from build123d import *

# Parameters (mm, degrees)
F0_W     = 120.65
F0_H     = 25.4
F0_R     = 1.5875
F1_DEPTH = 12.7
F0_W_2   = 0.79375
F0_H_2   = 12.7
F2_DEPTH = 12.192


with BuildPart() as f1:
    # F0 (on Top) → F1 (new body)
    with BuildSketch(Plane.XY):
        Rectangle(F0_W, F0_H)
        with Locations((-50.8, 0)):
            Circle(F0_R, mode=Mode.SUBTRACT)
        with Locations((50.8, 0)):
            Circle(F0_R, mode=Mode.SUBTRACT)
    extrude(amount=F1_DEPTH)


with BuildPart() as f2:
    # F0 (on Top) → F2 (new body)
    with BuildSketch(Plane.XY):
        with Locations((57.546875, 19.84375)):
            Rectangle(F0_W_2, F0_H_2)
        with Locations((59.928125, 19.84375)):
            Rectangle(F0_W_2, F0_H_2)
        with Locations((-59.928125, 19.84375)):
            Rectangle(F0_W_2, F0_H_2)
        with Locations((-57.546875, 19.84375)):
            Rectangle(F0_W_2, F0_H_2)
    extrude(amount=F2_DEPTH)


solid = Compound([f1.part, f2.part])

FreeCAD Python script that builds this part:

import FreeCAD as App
import Part
import Sketcher
Q = App.Units.Quantity

doc = App.newDocument("Part")
body = doc.addObject("PartDesign::Body", "Body")

# Sketch on XY plane
sketch1 = doc.addObject("Sketcher::SketchObject", "Sketch")
body.addObject(sketch1)
sketch1.AttachmentSupport = (doc.XY_Plane, [""])
sketch1.MapMode = "FlatFace"
sketch1.addGeometry([
    Part.LineSegment(App.Vector(-60.325, 12.7, 0), App.Vector(-60.325, -12.7, 0)),  # 0
    Part.LineSegment(App.Vector(-60.325, -12.7, 0), App.Vector(60.325, -12.7, 0)),  # 1
    Part.LineSegment(App.Vector(60.325, -12.7, 0), App.Vector(60.325, 12.7, 0)),  # 2
    Part.LineSegment(App.Vector(60.325, 12.7, 0), App.Vector(-60.325, 12.7, 0)),  # 3
    Part.Circle(App.Vector(-50.8, 0, 0), App.Vector(0, 0, 1), 1.5875),  # 4
    Part.Circle(App.Vector(50.8, 0, 0), App.Vector(0, 0, 1), 1.5875),  # 5
], False)
sketch1.addConstraint([
    Sketcher.Constraint("Coincident", 0, 2, 1, 1),
    Sketcher.Constraint("Coincident", 1, 2, 2, 1),
    Sketcher.Constraint("Coincident", 2, 2, 3, 1),
    Sketcher.Constraint("Coincident", 3, 2, 0, 1),
    Sketcher.Constraint("Vertical", 0),
    Sketcher.Constraint("Horizontal", 1),
    Sketcher.Constraint("Vertical", 2),
    Sketcher.Constraint("Horizontal", 3),
    Sketcher.Constraint("Equal", 4, 5),
    Sketcher.Constraint("Symmetric", 4, 3, 5, 3, -1, 1),
    Sketcher.Constraint("Symmetric", 0, 2, 2, 2, -1, 1),
    Sketcher.Constraint("PointOnObject", 4, 3, -1),
    Sketcher.Constraint("DistanceY", 0, 2, 0, 1, Q("1 in")),
    Sketcher.Constraint("Diameter", 4, Q("0.125 in")),
    Sketcher.Constraint("DistanceX", 4, 3, -1, 1, Q("2 in")),
    Sketcher.Constraint("DistanceX", 1, 1, 1, 2, Q("4.75 in")),
])
pad1 = doc.addObject("PartDesign::Pad", "Pad")
body.addObject(pad1)
pad1.Profile = sketch1
pad1.Length = Q("0.5 in")
body2 = doc.addObject("PartDesign::Body", "Body001")
body2.AllowCompound = True

# Sketch on XY plane
sketch2 = doc.addObject("Sketcher::SketchObject", "Sketch001")
body2.addObject(sketch2)
sketch2.AttachmentSupport = (doc.getObject("XY_Plane001"), [""])
sketch2.MapMode = "FlatFace"
sketch2.addGeometry([
    Part.LineSegment(App.Vector(57.15, 26.19375, 0), App.Vector(57.15, 13.49375, 0)),  # 0
    Part.LineSegment(App.Vector(57.15, 13.49375, 0), App.Vector(57.94375, 13.49375, 0)),  # 1
    Part.LineSegment(App.Vector(57.94375, 13.49375, 0), App.Vector(57.94375, 26.19375, 0)),  # 2
    Part.LineSegment(App.Vector(57.94375, 26.19375, 0), App.Vector(57.15, 26.19375, 0)),  # 3
    Part.LineSegment(App.Vector(59.53125, 26.19375, 0), App.Vector(59.53125, 13.49375, 0)),  # 4
    Part.LineSegment(App.Vector(59.53125, 13.49375, 0), App.Vector(60.325, 13.49375, 0)),  # 5
    Part.LineSegment(App.Vector(60.325, 13.49375, 0), App.Vector(60.325, 26.19375, 0)),  # 6
    Part.LineSegment(App.Vector(60.325, 26.19375, 0), App.Vector(59.53125, 26.19375, 0)),  # 7
    Part.LineSegment(App.Vector(-60.325, 26.19375, 0), App.Vector(-60.325, 13.49375, 0)),  # 8
    Part.LineSegment(App.Vector(-60.325, 13.49375, 0), App.Vector(-59.53125, 13.49375, 0)),  # 9
    Part.LineSegment(App.Vector(-59.53125, 13.49375, 0), App.Vector(-59.53125, 26.19375, 0)),  # 10
    Part.LineSegment(App.Vector(-59.53125, 26.19375, 0), App.Vector(-60.325, 26.19375, 0)),  # 11
    Part.LineSegment(App.Vector(-57.94375, 26.19375, 0), App.Vector(-57.94375, 13.49375, 0)),  # 12
    Part.LineSegment(App.Vector(-57.94375, 13.49375, 0), App.Vector(-57.15, 13.49375, 0)),  # 13
    Part.LineSegment(App.Vector(-57.15, 13.49375, 0), App.Vector(-57.15, 26.19375, 0)),  # 14
    Part.LineSegment(App.Vector(-57.15, 26.19375, 0), App.Vector(-57.94375, 26.19375, 0)),  # 15
], False)
sketch2.addConstraint([
    Sketcher.Constraint("Coincident", 0, 2, 1, 1),
    Sketcher.Constraint("Coincident", 1, 2, 2, 1),
    Sketcher.Constraint("Coincident", 2, 2, 3, 1),
    Sketcher.Constraint("Coincident", 3, 2, 0, 1),
    Sketcher.Constraint("Coincident", 4, 2, 5, 1),
    Sketcher.Constraint("Coincident", 5, 2, 6, 1),
    Sketcher.Constraint("Coincident", 6, 2, 7, 1),
    Sketcher.Constraint("Coincident", 7, 2, 4, 1),
    Sketcher.Constraint("Coincident", 8, 2, 9, 1),
    Sketcher.Constraint("Coincident", 9, 2, 10, 1),
    Sketcher.Constraint("Coincident", 10, 2, 11, 1),
    Sketcher.Constraint("Coincident", 11, 2, 8, 1),
    Sketcher.Constraint("Coincident", 12, 2, 13, 1),
    Sketcher.Constraint("Coincident", 13, 2, 14, 1),
    Sketcher.Constraint("Coincident", 14, 2, 15, 1),
    Sketcher.Constraint("Coincident", 15, 2, 12, 1),
    Sketcher.Constraint("Vertical", 0),
    Sketcher.Constraint("Horizontal", 1),
    Sketcher.Constraint("Vertical", 2),
    Sketcher.Constraint("Horizontal", 3),
    Sketcher.Constraint("Vertical", 4),
    Sketcher.Constraint("Horizontal", 5),
    Sketcher.Constraint("Vertical", 6),
    Sketcher.Constraint("Horizontal", 7),
    Sketcher.Constraint("Vertical", 8),
    Sketcher.Constraint("Horizontal", 9),
    Sketcher.Constraint("Vertical", 10),
    Sketcher.Constraint("Horizontal", 11),
    Sketcher.Constraint("Vertical", 12),
    Sketcher.Constraint("Horizontal", 13),
    Sketcher.Constraint("Vertical", 14),
    Sketcher.Constraint("Horizontal", 15),
    Sketcher.Constraint("Symmetric", 5, 2, 8, 2, -2),
    Sketcher.Constraint("Symmetric", 7, 2, 10, 2, -2),
    Sketcher.Constraint("Symmetric", 1, 2, 12, 2, -2),
    Sketcher.Constraint("Symmetric", 3, 2, 14, 2, -2),
    Sketcher.Constraint("Horizontal", 1, 2, 4, 2),
    Sketcher.Constraint("Horizontal", 3, 2, 6, 2),
    Sketcher.Constraint("Equal", 3, 5),
    Sketcher.Constraint("DistanceY", 0, 2, 0, 1, Q("0.5 in")),
    Sketcher.Constraint("DistanceX", 1, 1, 1, 2, Q("0.03125 in")),
    Sketcher.Constraint("DistanceX", -1, 1, 0, 2, Q("2.25 in")),
    Sketcher.Constraint("DistanceY", -1, 1, 0, 2, Q("0.53125 in")),
    Sketcher.Constraint("DistanceX", -1, 1, 4, 2, Q("2.34375 in")),
])
pad2 = doc.addObject("PartDesign::Pad", "Pad001")
body2.addObject(pad2)
pad2.Profile = sketch2
pad2.Length = Q("0.48 in")

doc.recompute()
